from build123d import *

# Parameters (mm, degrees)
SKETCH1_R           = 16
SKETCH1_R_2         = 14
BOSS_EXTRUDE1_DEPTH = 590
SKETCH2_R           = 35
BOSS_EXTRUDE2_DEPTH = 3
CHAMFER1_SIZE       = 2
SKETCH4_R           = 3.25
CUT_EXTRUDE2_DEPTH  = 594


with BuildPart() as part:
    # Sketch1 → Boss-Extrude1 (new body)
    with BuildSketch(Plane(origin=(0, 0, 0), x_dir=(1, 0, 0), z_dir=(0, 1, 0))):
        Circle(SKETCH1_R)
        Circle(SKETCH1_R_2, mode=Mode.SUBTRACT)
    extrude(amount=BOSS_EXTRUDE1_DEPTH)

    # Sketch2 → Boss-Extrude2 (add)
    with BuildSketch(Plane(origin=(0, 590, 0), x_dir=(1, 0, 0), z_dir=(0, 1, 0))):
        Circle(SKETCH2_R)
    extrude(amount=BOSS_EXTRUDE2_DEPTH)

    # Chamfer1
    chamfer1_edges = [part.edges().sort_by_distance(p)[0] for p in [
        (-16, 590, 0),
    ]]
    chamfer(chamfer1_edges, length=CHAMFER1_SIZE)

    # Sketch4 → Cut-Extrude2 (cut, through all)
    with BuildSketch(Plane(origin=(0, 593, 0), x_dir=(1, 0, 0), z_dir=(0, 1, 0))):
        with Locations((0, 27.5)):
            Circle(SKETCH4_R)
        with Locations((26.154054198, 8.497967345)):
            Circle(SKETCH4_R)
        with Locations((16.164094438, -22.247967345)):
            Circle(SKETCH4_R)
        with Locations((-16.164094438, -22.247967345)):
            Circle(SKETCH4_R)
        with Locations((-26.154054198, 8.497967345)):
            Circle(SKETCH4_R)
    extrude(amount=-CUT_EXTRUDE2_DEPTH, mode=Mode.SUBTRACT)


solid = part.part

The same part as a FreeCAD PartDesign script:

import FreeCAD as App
import Part
import Sketcher

V = App.Vector
Q = App.Units.Quantity


def edges_at(feature, points):
    """Names of the edges that pass closest to the given points."""
    edges = feature.Shape.Edges
    near = lambda p: min(range(len(edges)), key=lambda i: edges[i].distToShape(Part.Vertex(*p))[0])
    return sorted({f"Edge{near(p) + 1}" for p in points})

doc = App.newDocument("Part")
body = doc.addObject("PartDesign::Body", "Body")

sketch1 = body.newObject("Sketcher::SketchObject", "Sketch")
sketch1.AttachmentSupport = (doc.getObject("XZ_Plane"), [""])
sketch1.MapMode = "FlatFace"
sketch1.addGeometry(Part.Circle(V(0, 0, 0), V(0, 0, 1), 16), False)
sketch1.addGeometry(Part.Circle(V(0, 0, 0), V(0, 0, 1), 14), False)
sketch1.addConstraint(Sketcher.Constraint("Coincident", 0, 3, -1, 1))
sketch1.addConstraint(Sketcher.Constraint("Coincident", 1, 3, -1, 1))
sketch1.addConstraint(Sketcher.Constraint("Diameter", 0, Q("32 mm")))
sketch1.addConstraint(Sketcher.Constraint("Diameter", 1, Q("28 mm")))
pad1 = body.newObject("PartDesign::Pad", "Pad")
pad1.Profile = sketch1
pad1.Length = 590
pad1.Reversed = True

sketch2 = body.newObject("Sketcher::SketchObject", "Sketch001")
sketch2.AttachmentSupport = (doc.getObject("XZ_Plane"), [""])
sketch2.MapMode = "FlatFace"
sketch2.AttachmentOffset = App.Placement(V(0, 0, -590), App.Rotation())
sketch2.addGeometry(Part.Circle(V(0, 0, 0), V(0, 0, 1), 35), False)
sketch2.addConstraint(Sketcher.Constraint("Coincident", 0, 3, -1, 1))
sketch2.addConstraint(Sketcher.Constraint("Diameter", 0, Q("70 mm")))
pad2 = body.newObject("PartDesign::Pad", "Pad001")
pad2.Profile = sketch2
pad2.Length = 3
pad2.Reversed = True
doc.recompute()

chamfer = body.newObject("PartDesign::Chamfer", "Chamfer")
chamfer.Base = (pad2, edges_at(pad2, [(-16, 590, 0)]))
chamfer.Size = 2

sketch3 = body.newObject("Sketcher::SketchObject", "Sketch002")
sketch3.AttachmentSupport = (doc.getObject("XZ_Plane"), [""])
sketch3.MapMode = "FlatFace"
sketch3.AttachmentOffset = App.Placement(V(0, 0, -593), App.Rotation())
sketch3.addGeometry(Part.Circle(V(0, -27.5, 0), V(0, 0, 1), 3.2), False)
sketch3.addGeometry(Part.Circle(V(26.2, -8.5, 0), V(0, 0, 1), 3.2), False)
sketch3.addGeometry(Part.Circle(V(16.2, 22.2, 0), V(0, 0, 1), 3.2), False)
sketch3.addGeometry(Part.Circle(V(-16.2, 22.2, 0), V(0, 0, 1), 3.2), False)
sketch3.addGeometry(Part.Circle(V(-26.2, -8.5, 0), V(0, 0, 1), 3.2), False)
sketch3.addConstraint(Sketcher.Constraint("Equal", 0, 1))
sketch3.addConstraint(Sketcher.Constraint("Equal", 1, 2))
sketch3.addConstraint(Sketcher.Constraint("Equal", 2, 3))
sketch3.addConstraint(Sketcher.Constraint("Equal", 3, 4))
sketch3.addConstraint(Sketcher.Constraint("Symmetric", 2, 3, 3, 3, -2))
sketch3.addConstraint(Sketcher.Constraint("Symmetric", 1, 3, 4, 3, -2))
sketch3.addConstraint(Sketcher.Constraint("PointOnObject", 0, 3, -2))
sketch3.addConstraint(Sketcher.Constraint("Diameter", 0, Q("6.5 mm")))
sketch3.addConstraint(Sketcher.Constraint("DistanceY", 0, 3, -1, 1, Q("27.5 mm")))
sketch3.addConstraint(Sketcher.Constraint("DistanceX", 2, 3, 1, 3, Q("9.98996 mm")))
sketch3.addConstraint(Sketcher.Constraint("DistanceX", 3, 3, 2, 3, Q("32.328189 mm")))
sketch3.addConstraint(Sketcher.Constraint("DistanceY", 1, 3, -1, 1, Q("8.497967 mm")))
sketch3.addConstraint(Sketcher.Constraint("DistanceY", -1, 1, 2, 3, Q("22.247967 mm")))
pocket1 = body.newObject("PartDesign::Pocket", "Pocket")
pocket1.Profile = sketch3
pocket1.Type = "ThroughAll"
pocket1.Reversed = True

doc.recompute()
